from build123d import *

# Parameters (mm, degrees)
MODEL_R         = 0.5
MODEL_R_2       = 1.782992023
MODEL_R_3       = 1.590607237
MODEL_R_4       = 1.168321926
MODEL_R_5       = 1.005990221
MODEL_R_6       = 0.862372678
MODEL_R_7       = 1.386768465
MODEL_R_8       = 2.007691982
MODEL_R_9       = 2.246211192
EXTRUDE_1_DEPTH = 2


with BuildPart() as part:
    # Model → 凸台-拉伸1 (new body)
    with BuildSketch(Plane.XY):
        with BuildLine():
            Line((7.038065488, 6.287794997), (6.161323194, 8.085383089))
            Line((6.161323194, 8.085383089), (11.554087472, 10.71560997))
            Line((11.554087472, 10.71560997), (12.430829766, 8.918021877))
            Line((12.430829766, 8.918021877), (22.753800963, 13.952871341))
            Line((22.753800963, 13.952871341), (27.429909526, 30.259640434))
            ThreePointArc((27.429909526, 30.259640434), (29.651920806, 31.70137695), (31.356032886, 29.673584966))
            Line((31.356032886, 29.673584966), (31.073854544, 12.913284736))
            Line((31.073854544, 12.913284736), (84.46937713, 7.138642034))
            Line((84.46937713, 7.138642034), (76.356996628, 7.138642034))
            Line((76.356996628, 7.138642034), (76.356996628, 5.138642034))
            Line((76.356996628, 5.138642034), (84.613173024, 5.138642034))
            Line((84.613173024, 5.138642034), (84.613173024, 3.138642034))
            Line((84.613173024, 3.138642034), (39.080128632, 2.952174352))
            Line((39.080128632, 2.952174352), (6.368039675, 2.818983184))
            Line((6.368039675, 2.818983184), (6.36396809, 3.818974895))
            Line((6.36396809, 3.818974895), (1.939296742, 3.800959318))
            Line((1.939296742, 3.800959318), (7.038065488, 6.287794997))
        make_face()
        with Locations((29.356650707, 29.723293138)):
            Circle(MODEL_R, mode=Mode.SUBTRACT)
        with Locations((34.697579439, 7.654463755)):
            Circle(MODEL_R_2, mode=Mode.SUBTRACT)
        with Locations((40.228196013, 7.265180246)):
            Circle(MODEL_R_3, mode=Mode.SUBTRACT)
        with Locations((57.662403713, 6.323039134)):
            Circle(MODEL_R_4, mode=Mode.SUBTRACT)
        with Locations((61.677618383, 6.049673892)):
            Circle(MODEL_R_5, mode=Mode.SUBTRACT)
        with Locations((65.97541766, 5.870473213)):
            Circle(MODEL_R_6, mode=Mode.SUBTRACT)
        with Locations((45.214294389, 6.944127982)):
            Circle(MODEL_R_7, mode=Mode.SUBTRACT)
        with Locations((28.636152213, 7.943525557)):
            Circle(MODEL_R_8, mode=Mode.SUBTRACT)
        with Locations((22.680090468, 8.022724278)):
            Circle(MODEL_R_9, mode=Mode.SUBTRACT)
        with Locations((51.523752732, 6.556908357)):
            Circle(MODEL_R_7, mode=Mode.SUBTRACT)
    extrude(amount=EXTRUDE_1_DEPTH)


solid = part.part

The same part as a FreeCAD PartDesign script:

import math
import FreeCAD as App
import Part
import Sketcher

V = App.Vector
Q = App.Units.Quantity

doc = App.newDocument("Part")
body = doc.addObject("PartDesign::Body", "Body")

sketch1 = doc.addObject("Sketcher::SketchObject", "Sketch")
body.addObject(sketch1)
sketch1.AttachmentSupport = (doc.XY_Plane, [""])
sketch1.MapMode = "FlatFace"
sketch1.addGeometry(Part.LineSegment(V(6.161323, 8.085383, 0), V(7.038065, 6.287795, 0)), False)
sketch1.addGeometry(Part.LineSegment(V(7.038065, 6.287795, 0), V(1.939297, 3.800959, 0)), False)
sketch1.addGeometry(Part.LineSegment(V(1.939297, 3.800959, 0), V(6.363968, 3.818975, 0)), False)
sketch1.addGeometry(Part.LineSegment(V(6.363968, 3.818975, 0), V(6.36804, 2.818983, 0)), False)
sketch1.addGeometry(Part.LineSegment(V(6.36804, 2.818983, 0), V(39.080129, 2.952174, 0)), False)
sketch1.addGeometry(Part.LineSegment(V(39.080129, 2.952174, 0), V(84.613173, 3.138642, 0)), False)
sketch1.addGeometry(Part.LineSegment(V(84.613173, 3.138642, 0), V(84.613173, 5.138642, 0)), False)
sketch1.addGeometry(Part.LineSegment(V(84.613173, 5.138642, 0), V(76.356997, 5.138642, 0)), False)
sketch1.addGeometry(Part.LineSegment(V(76.356997, 5.138642, 0), V(76.356997, 7.138642, 0)), False)
sketch1.addGeometry(Part.LineSegment(V(76.356997, 7.138642, 0), V(84.469377, 7.138642, 0)), False)
sketch1.addGeometry(Part.LineSegment(V(84.469377, 7.138642, 0), V(31.073855, 12.913285, 0)), False)
sketch1.addGeometry(Part.LineSegment(V(31.073855, 12.913285, 0), V(31.356033, 29.673585, 0)), False)
sketch1.addGeometry(Part.ArcOfCircle(Part.Circle(V(29.356651, 29.723293, 0), V(0, 0, 1), 2), math.radians(-1.424181), math.radians(164.444383)), False)
sketch1.addGeometry(Part.LineSegment(V(27.42991, 30.25964, 0), V(22.753801, 13.952871, 0)), False)
sketch1.addGeometry(Part.LineSegment(V(22.753801, 13.952871, 0), V(12.43083, 8.918022, 0)), False)
sketch1.addGeometry(Part.LineSegment(V(12.43083, 8.918022, 0), V(11.554087, 10.71561, 0)), False)
sketch1.addGeometry(Part.LineSegment(V(11.554087, 10.71561, 0), V(6.161323, 8.085383, 0)), False)
sketch1.addGeometry(Part.Circle(V(65.975418, 5.870473, 0), V(0, 0, 1), 0.862373), False)
sketch1.addGeometry(Part.Circle(V(61.677618, 6.049674, 0), V(0, 0, 1), 1.00599), False)
sketch1.addGeometry(Part.Circle(V(57.662404, 6.323039, 0), V(0, 0, 1), 1.168322), False)
sketch1.addGeometry(Part.Circle(V(51.523753, 6.556908, 0), V(0, 0, 1), 1.386768), False)
sketch1.addGeometry(Part.Circle(V(45.214294, 6.944128, 0), V(0, 0, 1), 1.386768), False)
sketch1.addGeometry(Part.Circle(V(40.228196, 7.26518, 0), V(0, 0, 1), 1.590607), False)
sketch1.addGeometry(Part.Circle(V(34.697579, 7.654464, 0), V(0, 0, 1), 1.782992), False)
sketch1.addGeometry(Part.Circle(V(28.636152, 7.943526, 0), V(0, 0, 1), 2.007692), False)
sketch1.addGeometry(Part.Circle(V(22.68009, 8.022724, 0), V(0, 0, 1), 2.246211), False)
sketch1.addGeometry(Part.Circle(V(29.356651, 29.723293, 0), V(0, 0, 1), 0.5), False)
sketch1.addConstraint(Sketcher.Constraint("Coincident", 0, 2, 1, 1))
sketch1.addConstraint(Sketcher.Constraint("Coincident", 1, 2, 2, 1))
sketch1.addConstraint(Sketcher.Constraint("Coincident", 2, 2, 3, 1))
sketch1.addConstraint(Sketcher.Constraint("Coincident", 3, 2, 4, 1))
sketch1.addConstraint(Sketcher.Constraint("Coincident", 4, 2, 5, 1))
sketch1.addConstraint(Sketcher.Constraint("Coincident", 5, 2, 6, 1))
sketch1.addConstraint(Sketcher.Constraint("Coincident", 6, 2, 7, 1))
sketch1.addConstraint(Sketcher.Constraint("Coincident", 7, 2, 8, 1))
sketch1.addConstraint(Sketcher.Constraint("Coincident", 8, 2, 9, 1))
sketch1.addConstraint(Sketcher.Constraint("Coincident", 9, 2, 10, 1))
sketch1.addConstraint(Sketcher.Constraint("Coincident", 10, 2, 11, 1))
sketch1.addConstraint(Sketcher.Constraint("Coincident", 11, 2, 12, 1))
sketch1.addConstraint(Sketcher.Constraint("Coincident", 12, 2, 13, 1))
sketch1.addConstraint(Sketcher.Constraint("Coincident", 13, 2, 14, 1))
sketch1.addConstraint(Sketcher.Constraint("Coincident", 14, 2, 15, 1))
sketch1.addConstraint(Sketcher.Constraint("Coincident", 15, 2, 16, 1))
sketch1.addConstraint(Sketcher.Constraint("Coincident", 16, 2, 0, 1))
sketch1.addConstraint(Sketcher.Constraint("Vertical", 6))
sketch1.addConstraint(Sketcher.Constraint("Horizontal", 7))
sketch1.addConstraint(Sketcher.Constraint("Vertical", 8))
sketch1.addConstraint(Sketcher.Constraint("Horizontal", 9))
sketch1.addConstraint(Sketcher.Constraint("Coincident", 26, 3, 12, 3))
sketch1.addConstraint(Sketcher.Constraint("Equal", 20, 21))
sketch1.addConstraint(Sketcher.Constraint("Perpendicular", 0, 1))
sketch1.addConstraint(Sketcher.Constraint("Perpendicular", 2, 3))
sketch1.addConstraint(Sketcher.Constraint("Perpendicular", 3, 4))
sketch1.addConstraint(Sketcher.Constraint("Parallel", 1, 14))
sketch1.addConstraint(Sketcher.Constraint("Perpendicular", 14, 15))
sketch1.addConstraint(Sketcher.Constraint("Perpendicular", 15, 16))
sketch1.addConstraint(Sketcher.Constraint("Equal", 6, 8))
sketch1.addConstraint(Sketcher.Constraint("Equal", 0, 15))
sketch1.addConstraint(Sketcher.Constraint("Diameter", 26, 1.0))
sketch1.addConstraint(Sketcher.Constraint("Radius", 12, 2.0))
sketch1.addConstraint(Sketcher.Constraint("DistanceY", 6, 1, 6, 2, 2.0))
sketch1.addConstraint(Sketcher.Constraint("Angle", 0, Q("-64 deg")))
sketch1.addConstraint(Sketcher.Constraint("Distance", 0, 2.0))
sketch1.addConstraint(Sketcher.Constraint("Distance", 3, 1.0))
sketch1.addConstraint(Sketcher.Constraint("Distance", 16, 6.0))
sketch1.addConstraint(Sketcher.Constraint("Diameter", 18, 2.01198))
sketch1.addConstraint(Sketcher.Constraint("Diameter", 17, 1.724745))
sketch1.addConstraint(Sketcher.Constraint("Diameter", 19, 2.336644))
sketch1.addConstraint(Sketcher.Constraint("Diameter", 20, 2.773537))
sketch1.addConstraint(Sketcher.Constraint("Diameter", 22, 3.181214))
sketch1.addConstraint(Sketcher.Constraint("Diameter", 23, 3.565984))
sketch1.addConstraint(Sketcher.Constraint("Diameter", 24, 4.015384))
sketch1.addConstraint(Sketcher.Constraint("Diameter", 25, 4.492422))
sketch1.addConstraint(Sketcher.Constraint("Distance", 1, 5.6729))
sketch1.addConstraint(Sketcher.Constraint("DistanceX", 9, 1, 9, 2, 8.112381))
sketch1.addConstraint(Sketcher.Constraint("DistanceX", -1, 1, 13, 2, 22.753801))
sketch1.addConstraint(Sketcher.Constraint("DistanceX", 18, 3, 17, 3, 4.297799))
sketch1.addConstraint(Sketcher.Constraint("DistanceY", 17, 3, 18, 3, 0.179201))
sketch1.addConstraint(Sketcher.Constraint("DistanceX", 22, 3, 21, 3, 4.986098))
sketch1.addConstraint(Sketcher.Constraint("DistanceX", 24, 3, 12, 3, 0.720498))
sketch1.addConstraint(Sketcher.Constraint("DistanceX", 24, 3, 20, 3, 22.887601))
sketch1.addConstraint(Sketcher.Constraint("DistanceY", 24, 3, 25, 3, 0.079199))
sketch1.addConstraint(Sketcher.Constraint("DistanceY", 0, 2, 12, 3, 23.435498))
sketch1.addConstraint(Sketcher.Constraint("DistanceY", 10, 2, 11, 2, 16.7603))
sketch1.addConstraint(Sketcher.Constraint("DistanceY", 3, 2, 16, 2, 5.2664))
sketch1.addConstraint(Sketcher.Constraint("Distance", 2, 4.424708))
sketch1.addConstraint(Sketcher.Constraint("Distance", 4, 32.71236))
sketch1.addConstraint(Sketcher.Constraint("DistanceX", 7, 2, 7, 1, 8.256176))
sketch1.addConstraint(Sketcher.Constraint("DistanceX", -1, 1, 12, 3, 29.356651))
sketch1.addConstraint(Sketcher.Constraint("DistanceX", -1, 1, 18, 3, 61.677618))
sketch1.addConstraint(Sketcher.Constraint("DistanceY", -1, 1, 19, 3, 6.323039))
sketch1.addConstraint(Sketcher.Constraint("DistanceY", -1, 1, 20, 3, 6.556908))
sketch1.addConstraint(Sketcher.Constraint("DistanceY", -1, 1, 22, 3, 7.26518))
sketch1.addConstraint(Sketcher.Constraint("DistanceX", -1, 1, 23, 3, 34.697579))
sketch1.addConstraint(Sketcher.Constraint("DistanceX", -1, 1, 25, 3, 22.68009))
sketch1.addConstraint(Sketcher.Constraint("DistanceY", -1, 1, 1, 2, 3.800959))
sketch1.addConstraint(Sketcher.Constraint("DistanceX", -1, 1, 2, 2, 6.363968))
sketch1.addConstraint(Sketcher.Constraint("DistanceX", -1, 1, 12, 2, 27.42991))
sketch1.addConstraint(Sketcher.Constraint("DistanceY", 17, 3, 12, 3, 23.85282))
sketch1.addConstraint(Sketcher.Constraint("DistanceX", 20, 3, 19, 3, 6.138651))
sketch1.addConstraint(Sketcher.Constraint("DistanceX", 21, 3, 20, 3, 6.309458))
sketch1.addConstraint(Sketcher.Constraint("DistanceY", 20, 3, 21, 3, 0.38722))
sketch1.addConstraint(Sketcher.Constraint("DistanceY", 23, 3, 12, 3, 22.068829))
sketch1.addConstraint(Sketcher.Constraint("DistanceY", 23, 3, 24, 3, 0.289062))
sketch1.addConstraint(Sketcher.Constraint("DistanceY", 5, 2, 17, 3, 2.731831))
sketch1.addConstraint(Sketcher.Constraint("DistanceX", 19, 3, 5, 2, 26.950769))
sketch1.addConstraint(Sketcher.Constraint("DistanceY", 24, 3, 10, 2, 4.969759))
sketch1.addConstraint(Sketcher.Constraint("DistanceX", 10, 2, 22, 3, 9.154341))
pad1 = doc.addObject("PartDesign::Pad", "Pad")
body.addObject(pad1)
pad1.Profile = sketch1
pad1.Length = 2

doc.recompute()
